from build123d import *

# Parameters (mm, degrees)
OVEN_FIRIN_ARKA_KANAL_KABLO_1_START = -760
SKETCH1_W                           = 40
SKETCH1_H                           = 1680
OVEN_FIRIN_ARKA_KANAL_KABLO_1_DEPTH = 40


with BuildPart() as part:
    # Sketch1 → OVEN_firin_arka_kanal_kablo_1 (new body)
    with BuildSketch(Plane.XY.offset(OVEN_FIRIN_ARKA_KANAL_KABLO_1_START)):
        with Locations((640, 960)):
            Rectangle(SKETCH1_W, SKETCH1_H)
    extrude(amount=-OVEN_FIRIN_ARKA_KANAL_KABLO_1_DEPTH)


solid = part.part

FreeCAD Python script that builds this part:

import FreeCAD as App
import Part
import Sketcher

V = App.Vector

doc = App.newDocument("Part")
params = doc.addObject("Spreadsheet::Sheet", "Params")
for row, (alias, value) in enumerate([
    ("sketch1_width", "40 mm"),
    ("sketch1_height", "1680 mm"),
    ("pad1_length", "40 mm"),
], start=1):
    params.set(f"A{row}", alias)
    params.set(f"B{row}", "=" + value)
    params.setAlias(f"B{row}", alias)

body = doc.addObject("PartDesign::Body", "Body")

# Sketch on XY plane
sketch1 = doc.addObject("Sketcher::SketchObject", "Sketch")
body.addObject(sketch1)
sketch1.AttachmentSupport = (doc.XY_Plane, [""])
sketch1.MapMode = "FlatFace"
sketch1.AttachmentOffset = App.Placement(V(0, 0, -760), App.Rotation())
sketch1.addGeometry([
    Part.LineSegment(V(620, 1800, 0), V(620, 120, 0)),
    Part.LineSegment(V(620, 120, 0), V(660, 120, 0)),
    Part.LineSegment(V(660, 120, 0), V(660, 1800, 0)),
    Part.LineSegment(V(660, 1800, 0), V(620, 1800, 0)),
], False)
sketch1.addConstraint([
    Sketcher.Constraint("Coincident", 0, 2, 1, 1),
    Sketcher.Constraint("Coincident", 1, 2, 2, 1),
    Sketcher.Constraint("Coincident", 2, 2, 3, 1),
    Sketcher.Constraint("Coincident", 3, 2, 0, 1),
    Sketcher.Constraint("Vertical", 0),
    Sketcher.Constraint("Horizontal", 1),
    Sketcher.Constraint("Vertical", 2),
    Sketcher.Constraint("Horizontal", 3),
    Sketcher.Constraint("DistanceX", 1, 1, 1, 2, 40.0),
    Sketcher.Constraint("DistanceY", 0, 2, 0, 1, 1680.0),
    Sketcher.Constraint("DistanceX", -1, 1, 0, 2, 620.0),
    Sketcher.Constraint("DistanceY", -1, 1, 0, 2, 120.0),
])
sketch1.setExpression("Constraints[8]", "Params.sketch1_width")
sketch1.setExpression("Constraints[9]", "Params.sketch1_height")
pad1 = doc.addObject("PartDesign::Pad", "Pad")
body.addObject(pad1)
pad1.Profile = sketch1
pad1.setExpression("Length", "Params.pad1_length")
pad1.Reversed = True

doc.recompute()
